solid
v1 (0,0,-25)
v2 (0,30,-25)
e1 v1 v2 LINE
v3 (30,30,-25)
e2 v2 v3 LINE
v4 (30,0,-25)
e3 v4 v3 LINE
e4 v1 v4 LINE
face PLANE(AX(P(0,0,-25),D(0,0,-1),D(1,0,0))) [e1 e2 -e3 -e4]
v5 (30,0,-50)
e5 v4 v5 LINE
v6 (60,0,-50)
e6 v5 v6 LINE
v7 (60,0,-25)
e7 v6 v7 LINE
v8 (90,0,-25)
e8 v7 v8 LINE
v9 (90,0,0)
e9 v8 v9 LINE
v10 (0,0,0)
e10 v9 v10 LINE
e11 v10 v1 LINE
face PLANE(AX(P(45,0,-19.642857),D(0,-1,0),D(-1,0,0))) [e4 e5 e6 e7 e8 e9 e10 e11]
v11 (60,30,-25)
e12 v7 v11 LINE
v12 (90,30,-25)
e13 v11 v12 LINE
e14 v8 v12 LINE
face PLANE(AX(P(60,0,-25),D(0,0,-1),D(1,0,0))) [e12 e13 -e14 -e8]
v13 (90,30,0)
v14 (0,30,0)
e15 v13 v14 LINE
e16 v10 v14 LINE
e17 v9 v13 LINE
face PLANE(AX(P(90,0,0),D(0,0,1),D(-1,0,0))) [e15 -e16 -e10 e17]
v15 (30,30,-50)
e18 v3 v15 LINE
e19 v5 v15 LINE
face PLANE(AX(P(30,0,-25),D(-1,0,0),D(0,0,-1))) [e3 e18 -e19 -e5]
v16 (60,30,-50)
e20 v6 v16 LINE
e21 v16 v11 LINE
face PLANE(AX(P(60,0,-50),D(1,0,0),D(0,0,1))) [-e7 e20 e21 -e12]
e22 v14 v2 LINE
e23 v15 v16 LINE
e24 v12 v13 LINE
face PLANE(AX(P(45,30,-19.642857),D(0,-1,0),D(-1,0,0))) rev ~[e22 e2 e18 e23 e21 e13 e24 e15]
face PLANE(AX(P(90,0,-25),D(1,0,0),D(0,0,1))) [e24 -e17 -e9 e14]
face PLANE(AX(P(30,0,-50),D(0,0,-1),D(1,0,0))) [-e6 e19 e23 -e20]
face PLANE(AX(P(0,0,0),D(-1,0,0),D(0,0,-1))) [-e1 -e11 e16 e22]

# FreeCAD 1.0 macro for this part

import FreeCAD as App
import Part
import Sketcher

V = App.Vector
Q = App.Units.Quantity


def add_polygon(sketch, points):
    """Adds a closed chain of lines whose ends are joined by coincident constraints."""
    first, n = sketch.GeometryCount, len(points)
    for a, b in zip(points, points[1:] + points[:1]):
        sketch.addGeometry(Part.LineSegment(App.Vector(*a, 0), App.Vector(*b, 0)), False)
    for i in range(n):
        sketch.addConstraint(Sketcher.Constraint("Coincident", first + i, 2, first + (i + 1) % n, 1))

doc = App.newDocument("Part")
body = doc.addObject("PartDesign::Body", "Body")

sketch1 = body.newObject("Sketcher::SketchObject", "Sketch")
sketch1.AttachmentSupport = (doc.getObject("XZ_Plane"), [""])
sketch1.MapMode = "FlatFace"
add_polygon(sketch1, [(60, -50), (30, -50), (30, -25), (0, -25), (0, 0), (90, 0), (90, -25), (60, -25)])
sketch1.addConstraint([
    Sketcher.Constraint("Horizontal", 0),
    Sketcher.Constraint("Vertical", 1),
    Sketcher.Constraint("Horizontal", 2),
    Sketcher.Constraint("Vertical", 3),
    Sketcher.Constraint("Horizontal", 4),
    Sketcher.Constraint("Vertical", 5),
    Sketcher.Constraint("Horizontal", 6),
    Sketcher.Constraint("Vertical", 7),
    Sketcher.Constraint("Coincident", 3, 2, -1, 1),
    Sketcher.Constraint("Horizontal", 2, 2, 5, 2),
    Sketcher.Constraint("Equal", 0, 2),
    Sketcher.Constraint("Equal", 2, 6),
    Sketcher.Constraint("Equal", 1, 3),
    Sketcher.Constraint("DistanceX", 0, 2, 0, 1, Q("30 mm")),
    Sketcher.Constraint("DistanceY", 1, 1, 1, 2, Q("25 mm")),
])
pad1 = body.newObject("PartDesign::Pad", "Pad")
pad1.Profile = sketch1
pad1.Length = 30
pad1.Reversed = True

doc.recompute()
